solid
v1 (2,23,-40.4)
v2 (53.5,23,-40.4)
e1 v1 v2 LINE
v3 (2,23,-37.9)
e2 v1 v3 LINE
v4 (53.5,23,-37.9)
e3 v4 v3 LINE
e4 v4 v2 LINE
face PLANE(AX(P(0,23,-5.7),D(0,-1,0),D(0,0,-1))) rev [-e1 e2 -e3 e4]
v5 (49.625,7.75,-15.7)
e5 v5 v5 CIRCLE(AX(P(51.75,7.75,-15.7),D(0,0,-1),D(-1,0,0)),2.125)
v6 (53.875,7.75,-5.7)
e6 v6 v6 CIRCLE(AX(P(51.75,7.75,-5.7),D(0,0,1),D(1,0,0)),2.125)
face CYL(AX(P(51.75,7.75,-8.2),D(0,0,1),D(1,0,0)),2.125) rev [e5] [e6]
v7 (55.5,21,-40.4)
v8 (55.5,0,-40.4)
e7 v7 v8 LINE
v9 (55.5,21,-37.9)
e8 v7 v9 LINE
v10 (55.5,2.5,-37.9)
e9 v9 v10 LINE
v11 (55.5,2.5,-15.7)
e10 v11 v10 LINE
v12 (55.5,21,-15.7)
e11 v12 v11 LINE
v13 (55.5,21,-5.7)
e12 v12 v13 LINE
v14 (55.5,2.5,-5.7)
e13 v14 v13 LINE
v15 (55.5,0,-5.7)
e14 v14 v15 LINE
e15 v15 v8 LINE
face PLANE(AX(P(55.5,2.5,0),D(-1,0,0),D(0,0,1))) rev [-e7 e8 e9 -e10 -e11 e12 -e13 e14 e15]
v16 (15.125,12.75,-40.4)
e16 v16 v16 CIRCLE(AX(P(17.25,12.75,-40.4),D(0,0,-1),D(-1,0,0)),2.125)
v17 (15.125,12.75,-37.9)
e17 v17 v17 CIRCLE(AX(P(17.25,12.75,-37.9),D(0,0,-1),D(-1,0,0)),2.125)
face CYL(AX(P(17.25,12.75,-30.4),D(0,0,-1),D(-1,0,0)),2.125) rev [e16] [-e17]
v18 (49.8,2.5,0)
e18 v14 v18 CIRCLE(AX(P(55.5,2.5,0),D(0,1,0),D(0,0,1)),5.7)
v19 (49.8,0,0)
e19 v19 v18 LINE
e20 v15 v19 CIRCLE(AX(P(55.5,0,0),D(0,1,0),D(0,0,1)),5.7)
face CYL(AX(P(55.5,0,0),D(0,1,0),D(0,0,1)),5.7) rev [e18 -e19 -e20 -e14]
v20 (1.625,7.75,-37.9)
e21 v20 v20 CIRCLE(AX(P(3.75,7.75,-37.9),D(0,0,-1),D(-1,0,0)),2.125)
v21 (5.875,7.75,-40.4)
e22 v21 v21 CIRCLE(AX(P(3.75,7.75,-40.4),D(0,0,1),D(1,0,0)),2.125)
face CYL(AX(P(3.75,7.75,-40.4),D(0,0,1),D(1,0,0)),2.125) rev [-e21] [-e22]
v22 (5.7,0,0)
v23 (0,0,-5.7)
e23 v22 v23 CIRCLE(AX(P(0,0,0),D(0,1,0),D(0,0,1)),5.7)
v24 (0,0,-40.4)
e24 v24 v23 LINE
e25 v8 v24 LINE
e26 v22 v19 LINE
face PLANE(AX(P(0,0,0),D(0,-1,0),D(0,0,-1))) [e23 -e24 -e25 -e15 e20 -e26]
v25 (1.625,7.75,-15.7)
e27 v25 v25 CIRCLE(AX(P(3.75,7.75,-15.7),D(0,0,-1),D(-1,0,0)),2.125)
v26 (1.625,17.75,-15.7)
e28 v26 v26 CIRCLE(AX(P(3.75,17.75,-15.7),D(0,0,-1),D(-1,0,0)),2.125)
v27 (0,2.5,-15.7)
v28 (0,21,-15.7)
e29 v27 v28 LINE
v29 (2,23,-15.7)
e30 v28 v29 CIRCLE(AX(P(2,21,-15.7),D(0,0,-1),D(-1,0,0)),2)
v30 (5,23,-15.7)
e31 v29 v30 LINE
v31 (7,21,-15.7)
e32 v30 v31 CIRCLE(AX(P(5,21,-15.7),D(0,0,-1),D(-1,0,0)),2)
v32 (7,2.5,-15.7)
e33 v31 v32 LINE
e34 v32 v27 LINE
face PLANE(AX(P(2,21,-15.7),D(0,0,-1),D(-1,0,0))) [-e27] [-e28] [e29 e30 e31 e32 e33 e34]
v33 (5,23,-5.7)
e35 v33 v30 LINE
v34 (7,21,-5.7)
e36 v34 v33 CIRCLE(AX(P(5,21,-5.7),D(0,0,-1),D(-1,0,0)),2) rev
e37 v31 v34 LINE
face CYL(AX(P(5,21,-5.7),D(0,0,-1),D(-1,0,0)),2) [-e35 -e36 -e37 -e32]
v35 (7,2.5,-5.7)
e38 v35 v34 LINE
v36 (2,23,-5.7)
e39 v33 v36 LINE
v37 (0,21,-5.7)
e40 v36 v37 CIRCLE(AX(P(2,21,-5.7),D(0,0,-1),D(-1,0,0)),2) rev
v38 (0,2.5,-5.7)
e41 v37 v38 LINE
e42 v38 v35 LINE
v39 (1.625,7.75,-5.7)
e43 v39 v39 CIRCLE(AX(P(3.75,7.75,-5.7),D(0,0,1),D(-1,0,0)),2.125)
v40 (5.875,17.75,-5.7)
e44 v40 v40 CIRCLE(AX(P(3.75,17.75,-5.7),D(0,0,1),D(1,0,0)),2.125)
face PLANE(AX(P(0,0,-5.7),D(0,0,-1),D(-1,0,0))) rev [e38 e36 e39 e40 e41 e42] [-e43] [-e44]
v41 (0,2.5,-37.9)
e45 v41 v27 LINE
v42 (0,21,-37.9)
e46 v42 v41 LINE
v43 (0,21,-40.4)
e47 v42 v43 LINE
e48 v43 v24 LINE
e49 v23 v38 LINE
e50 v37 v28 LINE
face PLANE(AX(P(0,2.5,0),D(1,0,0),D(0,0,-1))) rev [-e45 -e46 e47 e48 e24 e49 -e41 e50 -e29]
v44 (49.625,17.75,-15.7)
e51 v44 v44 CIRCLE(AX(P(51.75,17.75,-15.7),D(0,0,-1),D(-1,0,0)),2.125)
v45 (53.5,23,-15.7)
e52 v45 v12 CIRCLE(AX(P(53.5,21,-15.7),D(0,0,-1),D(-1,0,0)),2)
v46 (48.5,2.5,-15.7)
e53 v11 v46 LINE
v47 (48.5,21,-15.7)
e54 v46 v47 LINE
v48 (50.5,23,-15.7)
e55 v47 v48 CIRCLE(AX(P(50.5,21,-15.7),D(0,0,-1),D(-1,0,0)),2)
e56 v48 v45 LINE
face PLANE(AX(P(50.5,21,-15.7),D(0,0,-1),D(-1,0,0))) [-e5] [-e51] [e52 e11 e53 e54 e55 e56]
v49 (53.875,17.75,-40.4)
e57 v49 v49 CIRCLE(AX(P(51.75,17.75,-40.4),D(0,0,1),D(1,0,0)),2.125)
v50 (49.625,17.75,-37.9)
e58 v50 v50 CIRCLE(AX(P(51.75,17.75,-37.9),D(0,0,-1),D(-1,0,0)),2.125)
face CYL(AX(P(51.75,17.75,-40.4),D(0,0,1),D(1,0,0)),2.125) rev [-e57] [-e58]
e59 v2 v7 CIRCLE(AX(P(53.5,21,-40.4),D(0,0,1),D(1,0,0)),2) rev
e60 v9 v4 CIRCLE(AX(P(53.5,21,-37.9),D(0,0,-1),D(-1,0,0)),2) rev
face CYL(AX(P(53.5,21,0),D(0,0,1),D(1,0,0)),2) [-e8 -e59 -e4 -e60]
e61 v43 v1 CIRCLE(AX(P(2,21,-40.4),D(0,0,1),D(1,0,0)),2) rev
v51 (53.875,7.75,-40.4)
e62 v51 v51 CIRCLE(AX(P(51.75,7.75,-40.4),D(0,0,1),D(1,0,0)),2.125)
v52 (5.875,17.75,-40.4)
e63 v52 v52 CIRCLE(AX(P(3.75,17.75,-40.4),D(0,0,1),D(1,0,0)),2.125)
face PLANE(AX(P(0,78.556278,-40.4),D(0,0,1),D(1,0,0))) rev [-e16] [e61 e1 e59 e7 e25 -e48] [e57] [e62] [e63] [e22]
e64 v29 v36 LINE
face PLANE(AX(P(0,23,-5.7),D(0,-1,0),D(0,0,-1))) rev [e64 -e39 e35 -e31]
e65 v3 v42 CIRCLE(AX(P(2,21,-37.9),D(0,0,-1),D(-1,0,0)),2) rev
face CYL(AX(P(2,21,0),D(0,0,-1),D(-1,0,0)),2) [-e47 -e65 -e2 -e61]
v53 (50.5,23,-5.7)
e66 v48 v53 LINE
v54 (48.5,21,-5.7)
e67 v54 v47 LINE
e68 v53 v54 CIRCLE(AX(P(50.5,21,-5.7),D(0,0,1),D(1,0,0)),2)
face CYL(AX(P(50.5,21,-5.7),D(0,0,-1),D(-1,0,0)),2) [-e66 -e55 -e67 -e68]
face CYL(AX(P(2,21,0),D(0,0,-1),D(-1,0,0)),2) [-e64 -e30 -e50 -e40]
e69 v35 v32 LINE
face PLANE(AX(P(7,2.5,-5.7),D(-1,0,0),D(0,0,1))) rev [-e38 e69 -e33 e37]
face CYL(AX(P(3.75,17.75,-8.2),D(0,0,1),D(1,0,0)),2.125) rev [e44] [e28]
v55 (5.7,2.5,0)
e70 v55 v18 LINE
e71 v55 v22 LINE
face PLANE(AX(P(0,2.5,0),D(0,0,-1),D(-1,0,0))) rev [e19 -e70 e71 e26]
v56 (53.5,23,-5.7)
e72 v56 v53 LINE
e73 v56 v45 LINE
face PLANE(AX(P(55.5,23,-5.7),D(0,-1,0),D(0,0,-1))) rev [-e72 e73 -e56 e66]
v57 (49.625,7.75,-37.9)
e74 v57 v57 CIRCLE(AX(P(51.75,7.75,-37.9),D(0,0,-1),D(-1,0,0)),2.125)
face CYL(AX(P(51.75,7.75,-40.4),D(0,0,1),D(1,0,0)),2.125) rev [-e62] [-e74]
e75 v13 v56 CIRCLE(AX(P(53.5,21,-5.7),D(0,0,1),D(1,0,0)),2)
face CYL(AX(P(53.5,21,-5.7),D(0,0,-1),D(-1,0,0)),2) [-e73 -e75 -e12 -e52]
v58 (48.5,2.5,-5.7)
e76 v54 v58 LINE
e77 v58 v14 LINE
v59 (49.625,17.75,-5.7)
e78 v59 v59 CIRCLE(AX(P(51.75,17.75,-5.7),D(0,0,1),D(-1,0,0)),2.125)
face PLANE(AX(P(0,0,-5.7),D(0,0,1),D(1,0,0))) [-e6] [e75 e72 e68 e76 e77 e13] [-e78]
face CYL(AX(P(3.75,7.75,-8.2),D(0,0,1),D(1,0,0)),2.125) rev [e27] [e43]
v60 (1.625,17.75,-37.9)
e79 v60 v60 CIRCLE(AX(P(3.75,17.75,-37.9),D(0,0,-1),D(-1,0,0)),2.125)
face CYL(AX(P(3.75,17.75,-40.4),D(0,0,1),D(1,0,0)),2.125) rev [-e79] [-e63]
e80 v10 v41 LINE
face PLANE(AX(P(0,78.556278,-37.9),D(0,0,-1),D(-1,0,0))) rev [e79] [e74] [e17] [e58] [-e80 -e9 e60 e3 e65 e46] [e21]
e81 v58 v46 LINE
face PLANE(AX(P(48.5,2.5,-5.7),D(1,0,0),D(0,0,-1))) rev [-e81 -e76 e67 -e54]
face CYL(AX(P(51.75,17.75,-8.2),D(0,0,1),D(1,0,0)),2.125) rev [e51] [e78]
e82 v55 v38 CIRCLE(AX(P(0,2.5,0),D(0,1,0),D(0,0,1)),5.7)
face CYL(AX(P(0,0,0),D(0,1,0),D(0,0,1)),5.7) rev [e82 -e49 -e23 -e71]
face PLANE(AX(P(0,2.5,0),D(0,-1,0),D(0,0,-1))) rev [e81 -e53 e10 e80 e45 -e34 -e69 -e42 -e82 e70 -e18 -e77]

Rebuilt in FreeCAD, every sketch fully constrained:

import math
import FreeCAD as App
import Part
import Sketcher


def edges_at(feature, points):
    """Names of the edges that pass closest to the given points."""
    edges = feature.Shape.Edges
    near = lambda p: min(range(len(edges)), key=lambda i: edges[i].distToShape(Part.Vertex(*p))[0])
    return sorted({f"Edge{near(p) + 1}" for p in points})

doc = App.newDocument("Part")
body = doc.addObject("PartDesign::Body", "Body")

# Sketch on XZ plane
sketch1 = body.newObject("Sketcher::SketchObject", "Sketch")
sketch1.AttachmentSupport = (doc.getObject("XZ_Plane"), [""])
sketch1.MapMode = "FlatFace"
sketch1.addGeometry([
    Part.LineSegment(App.Vector(0, -38, 0), App.Vector(0, 0, 0)),
    Part.LineSegment(App.Vector(0, 0, 0), App.Vector(56, 0, 0)),
    Part.LineSegment(App.Vector(56, 0, 0), App.Vector(56, -38, 0)),
    Part.LineSegment(App.Vector(56, -38, 0), App.Vector(0, -38, 0)),
], False)
sketch1.addConstraint([
    Sketcher.Constraint("Coincident", 0, 2, 1, 1),
    Sketcher.Constraint("Coincident", 1, 2, 2, 1),
    Sketcher.Constraint("Coincident", 2, 2, 3, 1),
    Sketcher.Constraint("Coincident", 3, 2, 0, 1),
    Sketcher.Constraint("Vertical", 0),
    Sketcher.Constraint("Horizontal", 1),
    Sketcher.Constraint("Vertical", 2),
    Sketcher.Constraint("Horizontal", 3),
    Sketcher.Constraint("Coincident", 0, 2, -1, 1),
    Sketcher.Constraint("DistanceX", 1, 1, 1, 2, 55.5),
    Sketcher.Constraint("DistanceY", 0, 1, 0, 2, 37.9),
])
pad1 = body.newObject("PartDesign::Pad", "Pad")
pad1.Profile = sketch1
pad1.Length = 2.5
pad1.Reversed = True

# Sketch on XY plane
sketch2 = body.newObject("Sketcher::SketchObject", "Sketch001")
sketch2.AttachmentSupport = (doc.getObject("XY_Plane"), [""])
sketch2.MapMode = "FlatFace"
sketch2.AttachmentOffset = App.Placement(App.Vector(0, 0, -8.2), App.Rotation())
sketch2.addGeometry([
    Part.LineSegment(App.Vector(0, 23, 0), App.Vector(0, 2, 0)),  # 0
    Part.LineSegment(App.Vector(0, 2, 0), App.Vector(7, 2, 0)),  # 1
    Part.LineSegment(App.Vector(7, 2, 0), App.Vector(7, 23, 0)),  # 2
    Part.LineSegment(App.Vector(7, 23, 0), App.Vector(0, 23, 0)),  # 3
    Part.LineSegment(App.Vector(48, 23, 0), App.Vector(48, 2, 0)),  # 4
    Part.LineSegment(App.Vector(48, 2, 0), App.Vector(56, 2, 0)),  # 5
    Part.LineSegment(App.Vector(56, 2, 0), App.Vector(56, 23, 0)),  # 6
    Part.LineSegment(App.Vector(56, 23, 0), App.Vector(48, 23, 0)),  # 7
], False)
sketch2.addConstraint([
    Sketcher.Constraint("Coincident", 0, 2, 1, 1),
    Sketcher.Constraint("Coincident", 1, 2, 2, 1),
    Sketcher.Constraint("Coincident", 2, 2, 3, 1),
    Sketcher.Constraint("Coincident", 3, 2, 0, 1),
    Sketcher.Constraint("Coincident", 4, 2, 5, 1),
    Sketcher.Constraint("Coincident", 5, 2, 6, 1),
    Sketcher.Constraint("Coincident", 6, 2, 7, 1),
    Sketcher.Constraint("Coincident", 7, 2, 4, 1),
    Sketcher.Constraint("Vertical", 0),
    Sketcher.Constraint("Horizontal", 1),
    Sketcher.Constraint("Vertical", 2),
    Sketcher.Constraint("Horizontal", 3),
    Sketcher.Constraint("Vertical", 4),
    Sketcher.Constraint("Horizontal", 5),
    Sketcher.Constraint("Vertical", 6),
    Sketcher.Constraint("Horizontal", 7),
    Sketcher.Constraint("PointOnObject", 0, 2, -2),
    Sketcher.Constraint("Horizontal", 1, 2, 4, 2),
    Sketcher.Constraint("Horizontal", 3, 2, 6, 2),
    Sketcher.Constraint("Equal", 3, 5),
    Sketcher.Constraint("DistanceX", 1, 1, 1, 2, 7.0),
    Sketcher.Constraint("DistanceY", 0, 2, 0, 1, 20.5),
    Sketcher.Constraint("DistanceY", -1, 1, 2, 2, 23.0),
    Sketcher.Constraint("DistanceX", -1, 1, 4, 2, 48.5),
])
pad2 = body.newObject("PartDesign::Pad", "Pad001")
pad2.Profile = sketch2
pad2.Length = 2.5

# Sketch on XY plane
sketch3 = body.newObject("Sketcher::SketchObject", "Sketch002")
sketch3.AttachmentSupport = (doc.getObject("XY_Plane"), [""])
sketch3.MapMode = "FlatFace"
sketch3.AttachmentOffset = App.Placement(App.Vector(0, 0, -5.7), App.Rotation())
sketch3.addGeometry([
    Part.Circle(App.Vector(3.8, 17.8, 0), App.Vector(0, 0, 1), 2.1),
    Part.Circle(App.Vector(3.8, 7.8, 0), App.Vector(0, 0, 1), 2.1),
    Part.Circle(App.Vector(51.8, 7.8, 0), App.Vector(0, 0, 1), 2.1),
    Part.Circle(App.Vector(51.8, 17.8, 0), App.Vector(0, 0, 1), 2.1),
], False)
sketch3.addConstraint([
    Sketcher.Constraint("Equal", 0, 1),
    Sketcher.Constraint("Equal", 1, 2),
    Sketcher.Constraint("Equal", 2, 3),
    Sketcher.Constraint("Horizontal", 1, 3, 2, 3),
    Sketcher.Constraint("Horizontal", 0, 3, 3, 3),
    Sketcher.Constraint("Vertical", 0, 3, 1, 3),
    Sketcher.Constraint("Vertical", 2, 3, 3, 3),
    Sketcher.Constraint("Diameter", 0, 4.25),
    Sketcher.Constraint("DistanceY", 1, 3, 0, 3, 10.0),
    Sketcher.Constraint("DistanceX", 1, 3, 2, 3, 48.0),
    Sketcher.Constraint("DistanceX", -1, 1, 0, 3, 3.75),
    Sketcher.Constraint("DistanceY", -1, 1, 0, 3, 17.75),
])
pocket1 = body.newObject("PartDesign::Pocket", "Pocket")
pocket1.Profile = sketch3
pocket1.Length = 2.5

# Sketch on XZ plane
sketch4 = body.newObject("Sketcher::SketchObject", "Sketch003")
sketch4.AttachmentSupport = (doc.getObject("XZ_Plane"), [""])
sketch4.MapMode = "FlatFace"
sketch4.addGeometry([
    Part.LineSegment(App.Vector(0, -40.4, 0), App.Vector(0, -37.9, 0)),
    Part.LineSegment(App.Vector(0, -37.9, 0), App.Vector(55.5, -37.9, 0)),
    Part.LineSegment(App.Vector(55.5, -37.9, 0), App.Vector(55.5, -40.4, 0)),
    Part.LineSegment(App.Vector(55.5, -40.4, 0), App.Vector(0, -40.4, 0)),
], False)
sketch4.addConstraint([
    Sketcher.Constraint("Coincident", 0, 2, 1, 1),
    Sketcher.Constraint("Coincident", 1, 2, 2, 1),
    Sketcher.Constraint("Coincident", 2, 2, 3, 1),
    Sketcher.Constraint("Coincident", 3, 2, 0, 1),
    Sketcher.Constraint("Vertical", 0),
    Sketcher.Constraint("Horizontal", 1),
    Sketcher.Constraint("Vertical", 2),
    Sketcher.Constraint("Horizontal", 3),
    Sketcher.Constraint("PointOnObject", 0, 2, -2),
    Sketcher.Constraint("DistanceX", 1, 1, 1, 2, 55.5),
    Sketcher.Constraint("DistanceY", 0, 1, 0, 2, 2.5),
    Sketcher.Constraint("DistanceY", 0, 2, -1, 1, 37.9),
])
pad3 = body.newObject("PartDesign::Pad", "Pad002")
pad3.Profile = sketch4
pad3.Length = 23
pad3.Reversed = True

# Sketch on XZ plane
sketch5 = body.newObject("Sketcher::SketchObject", "Sketch004")
sketch5.AttachmentSupport = (doc.getObject("XZ_Plane"), [""])
sketch5.MapMode = "FlatFace"
sketch5.AttachmentOffset = App.Placement(App.Vector(0, 0, -2.5), App.Rotation())
sketch5.addGeometry([
    Part.Circle(App.Vector(0, 0, 0), App.Vector(0, 0, 1), 6),
    Part.Circle(App.Vector(56, 0, 0), App.Vector(0, 0, 1), 6),
], False)
sketch5.addConstraint([
    Sketcher.Constraint("Coincident", 0, 3, -1, 1),
    Sketcher.Constraint("Equal", 0, 1),
    Sketcher.Constraint("PointOnObject", 1, 3, -1),
    Sketcher.Constraint("Diameter", 0, 11.4),
    Sketcher.Constraint("DistanceX", -1, 1, 1, 3, 55.5),
])
pocket2 = body.newObject("PartDesign::Pocket", "Pocket001")
pocket2.Profile = sketch5
pocket2.Length = 2.5
pocket2.Reversed = True
doc.recompute()

fillet = body.newObject("PartDesign::Fillet", "Fillet")
fillet.Base = (pocket2, edges_at(pocket2, [
    (0, 23, -6.95),
    (7, 23, -6.95),
    (55.5, 23, -6.95),
    (48.5, 23, -6.95),
    (55.5, 23, -39.15),
    (0, 23, -39.15),
]))
fillet.Radius = 2

# Sketch on XY plane
sketch6 = body.newObject("Sketcher::SketchObject", "Sketch005")
sketch6.AttachmentSupport = (doc.getObject("XY_Plane"), [""])
sketch6.MapMode = "FlatFace"
sketch6.AttachmentOffset = App.Placement(App.Vector(0, 0, -40.4), App.Rotation())
sketch6.addGeometry(Part.Circle(App.Vector(17.2, 12.8, 0), App.Vector(0, 0, 1), 2.1), False)
sketch6.addConstraint([
    Sketcher.Constraint("Diameter", 0, 4.25),
    Sketcher.Constraint("DistanceX", -1, 1, 0, 3, 17.25),
    Sketcher.Constraint("DistanceY", -1, 1, 0, 3, 12.75),
])
pocket3 = body.newObject("PartDesign::Pocket", "Pocket002")
pocket3.Profile = sketch6
pocket3.Length = 10
pocket3.Reversed = True

# Sketch on XY plane
sketch7 = body.newObject("Sketcher::SketchObject", "Sketch006")
sketch7.AttachmentSupport = (doc.getObject("XY_Plane"), [""])
sketch7.MapMode = "FlatFace"
sketch7.AttachmentOffset = App.Placement(App.Vector(0, 0, -8.2), App.Rotation())
sketch7.addGeometry([
    Part.LineSegment(App.Vector(48.5, 2.5, 0), App.Vector(48.5, 21, 0)),  # 0
    Part.ArcOfCircle(Part.Circle(App.Vector(50.5, 21, 0), App.Vector(0, 0, 1), 2), math.radians(90), math.radians(180)),  # 1
    Part.LineSegment(App.Vector(50.5, 23, 0), App.Vector(53.5, 23, 0)),  # 2
    Part.ArcOfCircle(Part.Circle(App.Vector(53.5, 21, 0), App.Vector(0, 0, 1), 2), math.radians(0), math.radians(90)),  # 3
    Part.LineSegment(App.Vector(55.5, 21, 0), App.Vector(55.5, 2.5, 0)),  # 4
    Part.LineSegment(App.Vector(55.5, 2.5, 0), App.Vector(48.5, 2.5, 0)),  # 5
    Part.Circle(App.Vector(51.8, 7.8, 0), App.Vector(0, 0, 1), 2.1),  # 6
    Part.Circle(App.Vector(51.8, 17.8, 0), App.Vector(0, 0, 1), 2.1),  # 7
    Part.LineSegment(App.Vector(2, 23, 0), App.Vector(5, 23, 0)),  # 8
    Part.ArcOfCircle(Part.Circle(App.Vector(5, 21, 0), App.Vector(0, 0, 1), 2), math.radians(0), math.radians(90)),  # 9
    Part.LineSegment(App.Vector(7, 21, 0), App.Vector(7, 2.5, 0)),  # 10
    Part.LineSegment(App.Vector(7, 2.5, 0), App.Vector(0, 2.5, 0)),  # 11
    Part.LineSegment(App.Vector(0, 2.5, 0), App.Vector(0, 21, 0)),  # 12
    Part.ArcOfCircle(Part.Circle(App.Vector(2, 21, 0), App.Vector(0, 0, 1), 2), math.radians(90), math.radians(180)),  # 13
    Part.Circle(App.Vector(3.8, 7.8, 0), App.Vector(0, 0, 1), 2.1),  # 14
    Part.Circle(App.Vector(3.8, 17.8, 0), App.Vector(0, 0, 1), 2.1),  # 15
], False)
sketch7.addConstraint([
    Sketcher.Constraint("Tangent", 0, 2, 1, 2),
    Sketcher.Constraint("Tangent", 1, 1, 2, 1),
    Sketcher.Constraint("Tangent", 2, 2, 3, 2),
    Sketcher.Constraint("Tangent", 3, 1, 4, 1),
    Sketcher.Constraint("Coincident", 4, 2, 5, 1),
    Sketcher.Constraint("Coincident", 5, 2, 0, 1),
    Sketcher.Constraint("Tangent", 8, 2, 9, 2),
    Sketcher.Constraint("Tangent", 9, 1, 10, 1),
    Sketcher.Constraint("Coincident", 10, 2, 11, 1),
    Sketcher.Constraint("Coincident", 11, 2, 12, 1),
    Sketcher.Constraint("Tangent", 12, 2, 13, 2),
    Sketcher.Constraint("Tangent", 13, 1, 8, 1),
    Sketcher.Constraint("Vertical", 0),
    Sketcher.Constraint("Horizontal", 2),
    Sketcher.Constraint("Vertical", 4),
    Sketcher.Constraint("Horizontal", 5),
    Sketcher.Constraint("Horizontal", 8),
    Sketcher.Constraint("Vertical", 10),
    Sketcher.Constraint("Horizontal", 11),
    Sketcher.Constraint("Vertical", 12),
    Sketcher.Constraint("Equal", 1, 3),
    Sketcher.Constraint("Equal", 6, 7),
    Sketcher.Constraint("Equal", 3, 9),
    Sketcher.Constraint("Equal", 9, 13),
    Sketcher.Constraint("Equal", 7, 14),
    Sketcher.Constraint("Equal", 14, 15),
    Sketcher.Constraint("PointOnObject", 11, 2, -2),
    Sketcher.Constraint("Horizontal", 3, 3, 9, 3),
    Sketcher.Constraint("Horizontal", 6, 3, 14, 3),
    Sketcher.Constraint("Horizontal", 7, 3, 15, 3),
    Sketcher.Constraint("Horizontal", 5, 2, 10, 2),
    Sketcher.Constraint("Vertical", 6, 3, 7, 3),
    Sketcher.Constraint("Vertical", 14, 3, 15, 3),
    Sketcher.Constraint("Equal", 2, 8),
    Sketcher.Constraint("Radius", 1, 2.0),
    Sketcher.Constraint("Diameter", 6, 4.25),
    Sketcher.Constraint("DistanceX", 2, 1, 2, 2, 3.0),
    Sketcher.Constraint("DistanceY", 0, 1, 0, 2, 18.5),
    Sketcher.Constraint("DistanceY", -1, 1, 1, 3, 21.0),
    Sketcher.Constraint("DistanceY", 6, 3, 7, 3, 10.0),
    Sketcher.Constraint("DistanceX", 14, 3, 6, 3, 48.0),
    Sketcher.Constraint("DistanceX", -1, 1, 1, 3, 50.5),
    Sketcher.Constraint("DistanceX", -1, 1, 6, 3, 51.75),
    Sketcher.Constraint("DistanceY", -1, 1, 6, 3, 7.75),
])
pad4 = body.newObject("PartDesign::Pad", "Pad003")
pad4.Profile = sketch7
pad4.Length = 7.5
pad4.Reversed = True

# Sketch on XY plane
sketch8 = body.newObject("Sketcher::SketchObject", "Sketch007")
sketch8.AttachmentSupport = (doc.getObject("XY_Plane"), [""])
sketch8.MapMode = "FlatFace"
sketch8.AttachmentOffset = App.Placement(App.Vector(0, 0, -5.7), App.Rotation())
sketch8.addGeometry([
    Part.Circle(App.Vector(3.8, 17.8, 0), App.Vector(0, 0, 1), 2.1),
    Part.Circle(App.Vector(3.8, 7.8, 0), App.Vector(0, 0, 1), 2.1),
    Part.Circle(App.Vector(51.8, 17.8, 0), App.Vector(0, 0, 1), 2.1),
    Part.Circle(App.Vector(51.8, 7.8, 0), App.Vector(0, 0, 1), 2.1),
], False)
sketch8.addConstraint([
    Sketcher.Constraint("Equal", 0, 1),
    Sketcher.Constraint("Equal", 1, 2),
    Sketcher.Constraint("Equal", 2, 3),
    Sketcher.Constraint("Horizontal", 0, 3, 2, 3),
    Sketcher.Constraint("Horizontal", 1, 3, 3, 3),
    Sketcher.Constraint("Vertical", 0, 3, 1, 3),
    Sketcher.Constraint("Vertical", 2, 3, 3, 3),
    Sketcher.Constraint("Diameter", 0, 4.25),
    Sketcher.Constraint("DistanceY", 1, 3, 0, 3, 10.0),
    Sketcher.Constraint("DistanceX", 0, 3, 2, 3, 48.0),
    Sketcher.Constraint("DistanceX", -1, 1, 0, 3, 3.75),
    Sketcher.Constraint("DistanceY", -1, 1, 0, 3, 17.75),
])
pocket4 = body.newObject("PartDesign::Pocket", "Pocket003")
pocket4.Profile = sketch8
pocket4.Type = "ThroughAll"

doc.recompute()
